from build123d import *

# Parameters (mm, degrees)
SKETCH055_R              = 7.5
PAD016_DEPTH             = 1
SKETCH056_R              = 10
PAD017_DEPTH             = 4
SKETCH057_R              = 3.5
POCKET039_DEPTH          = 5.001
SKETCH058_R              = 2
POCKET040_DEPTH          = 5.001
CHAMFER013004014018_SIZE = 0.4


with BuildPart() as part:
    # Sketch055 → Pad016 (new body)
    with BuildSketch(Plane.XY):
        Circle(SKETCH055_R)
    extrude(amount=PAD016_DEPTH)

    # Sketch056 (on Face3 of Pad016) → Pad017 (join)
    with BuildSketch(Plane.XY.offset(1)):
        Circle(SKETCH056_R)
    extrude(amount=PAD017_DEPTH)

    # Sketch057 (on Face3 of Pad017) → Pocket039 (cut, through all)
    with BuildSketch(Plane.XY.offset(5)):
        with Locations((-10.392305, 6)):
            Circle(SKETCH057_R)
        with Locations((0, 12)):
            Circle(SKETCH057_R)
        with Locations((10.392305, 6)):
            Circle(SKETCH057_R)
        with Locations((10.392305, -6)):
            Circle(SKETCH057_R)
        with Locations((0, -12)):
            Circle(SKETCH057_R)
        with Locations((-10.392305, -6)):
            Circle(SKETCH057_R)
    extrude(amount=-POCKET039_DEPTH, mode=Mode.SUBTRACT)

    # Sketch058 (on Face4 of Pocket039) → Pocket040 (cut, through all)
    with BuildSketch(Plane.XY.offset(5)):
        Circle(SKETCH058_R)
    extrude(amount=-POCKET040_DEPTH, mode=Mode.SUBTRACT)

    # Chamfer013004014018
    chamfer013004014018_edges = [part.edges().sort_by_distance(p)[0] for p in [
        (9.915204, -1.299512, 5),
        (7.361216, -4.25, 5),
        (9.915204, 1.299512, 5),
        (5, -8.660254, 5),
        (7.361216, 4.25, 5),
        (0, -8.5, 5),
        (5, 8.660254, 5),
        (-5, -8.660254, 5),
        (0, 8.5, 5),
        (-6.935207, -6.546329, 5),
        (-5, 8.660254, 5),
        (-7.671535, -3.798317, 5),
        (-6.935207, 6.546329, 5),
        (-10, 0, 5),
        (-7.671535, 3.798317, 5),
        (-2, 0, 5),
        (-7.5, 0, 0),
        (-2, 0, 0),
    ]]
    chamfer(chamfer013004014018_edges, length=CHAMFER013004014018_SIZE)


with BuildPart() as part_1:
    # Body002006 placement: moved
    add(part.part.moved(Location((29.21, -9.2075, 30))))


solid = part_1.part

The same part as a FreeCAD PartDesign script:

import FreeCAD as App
import Part
import Sketcher
from FreeCAD import Vector
Q = App.Units.Quantity


def edges_at(feature, points):
    """Names of the edges that pass closest to the given points."""
    edges = feature.Shape.Edges
    near = lambda p: min(range(len(edges)), key=lambda i: edges[i].distToShape(Part.Vertex(*p))[0])
    return sorted({f"Edge{near(p) + 1}" for p in points})

doc = App.newDocument("Part")
body = doc.addObject("PartDesign::Body", "Body")

sketch1 = body.newObject("Sketcher::SketchObject", "Sketch")
sketch1.AttachmentSupport = (doc.getObject("XY_Plane"), [""])
sketch1.MapMode = "FlatFace"
sketch1.addGeometry(Part.Circle(Vector(0, 0, 0), Vector(0, 0, 1), 8), False)
sketch1.addConstraint([
    Sketcher.Constraint("Coincident", 0, 3, -1, 1),
    Sketcher.Constraint("Diameter", 0, Q("15 mm")),
])
pad1 = body.newObject("PartDesign::Pad", "Pad")
pad1.Profile = sketch1
pad1.Length = 1

sketch2 = body.newObject("Sketcher::SketchObject", "Sketch001")
sketch2.AttachmentSupport = (doc.getObject("XY_Plane"), [""])
sketch2.MapMode = "FlatFace"
sketch2.AttachmentOffset = App.Placement(Vector(0, 0, 1), App.Rotation())
sketch2.addGeometry(Part.Circle(Vector(0, 0, 0), Vector(0, 0, 1), 10), False)
sketch2.addConstraint([
    Sketcher.Constraint("Coincident", 0, 3, -1, 1),
    Sketcher.Constraint("Diameter", 0, Q("20 mm")),
])
pad2 = body.newObject("PartDesign::Pad", "Pad001")
pad2.Profile = sketch2
pad2.Length = 4

sketch3 = body.newObject("Sketcher::SketchObject", "Sketch002")
sketch3.AttachmentSupport = (doc.getObject("XY_Plane"), [""])
sketch3.MapMode = "FlatFace"
sketch3.AttachmentOffset = App.Placement(Vector(0, 0, 5), App.Rotation())
sketch3.addGeometry([
    Part.Circle(Vector(-10.4, 6, 0), Vector(0, 0, 1), 3.5),
    Part.Circle(Vector(0, 12, 0), Vector(0, 0, 1), 3.5),
    Part.Circle(Vector(10.4, 6, 0), Vector(0, 0, 1), 3.5),
    Part.Circle(Vector(10.4, -6, 0), Vector(0, 0, 1), 3.5),
    Part.Circle(Vector(0, -12, 0), Vector(0, 0, 1), 3.5),
    Part.Circle(Vector(-10.4, -6, 0), Vector(0, 0, 1), 3.5),
], False)
sketch3.addConstraint([
    Sketcher.Constraint("Equal", 0, 1),
    Sketcher.Constraint("Equal", 1, 2),
    Sketcher.Constraint("Equal", 2, 3),
    Sketcher.Constraint("Equal", 3, 4),
    Sketcher.Constraint("Equal", 4, 5),
    Sketcher.Constraint("Symmetric", 0, 3, 3, 3, -1, 1),
    Sketcher.Constraint("Symmetric", 1, 3, 4, 3, -1, 1),
    Sketcher.Constraint("Symmetric", 2, 3, 5, 3, -1, 1),
    Sketcher.Constraint("Symmetric", 0, 3, 2, 3, -2),
    Sketcher.Constraint("PointOnObject", 1, 3, -2),
    Sketcher.Constraint("Diameter", 0, Q("7 mm")),
    Sketcher.Constraint("DistanceY", -1, 1, 0, 3, Q("6 mm")),
    Sketcher.Constraint("DistanceY", -1, 1, 1, 3, Q("12 mm")),
    Sketcher.Constraint("DistanceX", 0, 3, 2, 3, Q("20.78461 mm")),
])
pocket1 = body.newObject("PartDesign::Pocket", "Pocket")
pocket1.Profile = sketch3
pocket1.Type = "ThroughAll"

sketch4 = body.newObject("Sketcher::SketchObject", "Sketch003")
sketch4.AttachmentSupport = (doc.getObject("XY_Plane"), [""])
sketch4.MapMode = "FlatFace"
sketch4.AttachmentOffset = App.Placement(Vector(0, 0, 5), App.Rotation())
sketch4.addGeometry(Part.Circle(Vector(0, 0, 0), Vector(0, 0, 1), 2), False)
sketch4.addConstraint([
    Sketcher.Constraint("Coincident", 0, 3, -1, 1),
    Sketcher.Constraint("Diameter", 0, Q("4 mm")),
])
pocket2 = body.newObject("PartDesign::Pocket", "Pocket001")
pocket2.Profile = sketch4
pocket2.Type = "ThroughAll"
doc.recompute()

chamfer = body.newObject("PartDesign::Chamfer", "Chamfer")
chamfer.Base = (pocket2, edges_at(pocket2, [
    (10, 0, 5),
    (7.361, -4.25, 5),
    (10, 0, 5),
    (5, -8.66, 5),
    (7.361, 4.25, 5),
    (0, -8.5, 5),
    (5, 8.66, 5),
    (-5, -8.66, 5),
    (0, 8.5, 5),
    (-7.361, -4.25, 5),
    (-5, 8.66, 5),
    (-7.361, -4.25, 5),
    (-7.361, 4.25, 5),
    (-10, 0, 5),
    (-7.361, 4.25, 5),
    (-2, 0, 5),
    (-7.5, 0, 0),
    (-2, 0, 0),
]))
chamfer.Size = 0.4
body2 = doc.addObject("PartDesign::Body", "Body001")
doc.recompute()

body.Placement = App.Placement(Vector(29.21, -9.2075, 30), App.Rotation(Vector(0, 0, 1), 0))
boolean = body2.newObject("PartDesign::Boolean", "Boolean")
boolean.Type = "Fuse"
boolean.addObjects([body])

doc.recompute()
